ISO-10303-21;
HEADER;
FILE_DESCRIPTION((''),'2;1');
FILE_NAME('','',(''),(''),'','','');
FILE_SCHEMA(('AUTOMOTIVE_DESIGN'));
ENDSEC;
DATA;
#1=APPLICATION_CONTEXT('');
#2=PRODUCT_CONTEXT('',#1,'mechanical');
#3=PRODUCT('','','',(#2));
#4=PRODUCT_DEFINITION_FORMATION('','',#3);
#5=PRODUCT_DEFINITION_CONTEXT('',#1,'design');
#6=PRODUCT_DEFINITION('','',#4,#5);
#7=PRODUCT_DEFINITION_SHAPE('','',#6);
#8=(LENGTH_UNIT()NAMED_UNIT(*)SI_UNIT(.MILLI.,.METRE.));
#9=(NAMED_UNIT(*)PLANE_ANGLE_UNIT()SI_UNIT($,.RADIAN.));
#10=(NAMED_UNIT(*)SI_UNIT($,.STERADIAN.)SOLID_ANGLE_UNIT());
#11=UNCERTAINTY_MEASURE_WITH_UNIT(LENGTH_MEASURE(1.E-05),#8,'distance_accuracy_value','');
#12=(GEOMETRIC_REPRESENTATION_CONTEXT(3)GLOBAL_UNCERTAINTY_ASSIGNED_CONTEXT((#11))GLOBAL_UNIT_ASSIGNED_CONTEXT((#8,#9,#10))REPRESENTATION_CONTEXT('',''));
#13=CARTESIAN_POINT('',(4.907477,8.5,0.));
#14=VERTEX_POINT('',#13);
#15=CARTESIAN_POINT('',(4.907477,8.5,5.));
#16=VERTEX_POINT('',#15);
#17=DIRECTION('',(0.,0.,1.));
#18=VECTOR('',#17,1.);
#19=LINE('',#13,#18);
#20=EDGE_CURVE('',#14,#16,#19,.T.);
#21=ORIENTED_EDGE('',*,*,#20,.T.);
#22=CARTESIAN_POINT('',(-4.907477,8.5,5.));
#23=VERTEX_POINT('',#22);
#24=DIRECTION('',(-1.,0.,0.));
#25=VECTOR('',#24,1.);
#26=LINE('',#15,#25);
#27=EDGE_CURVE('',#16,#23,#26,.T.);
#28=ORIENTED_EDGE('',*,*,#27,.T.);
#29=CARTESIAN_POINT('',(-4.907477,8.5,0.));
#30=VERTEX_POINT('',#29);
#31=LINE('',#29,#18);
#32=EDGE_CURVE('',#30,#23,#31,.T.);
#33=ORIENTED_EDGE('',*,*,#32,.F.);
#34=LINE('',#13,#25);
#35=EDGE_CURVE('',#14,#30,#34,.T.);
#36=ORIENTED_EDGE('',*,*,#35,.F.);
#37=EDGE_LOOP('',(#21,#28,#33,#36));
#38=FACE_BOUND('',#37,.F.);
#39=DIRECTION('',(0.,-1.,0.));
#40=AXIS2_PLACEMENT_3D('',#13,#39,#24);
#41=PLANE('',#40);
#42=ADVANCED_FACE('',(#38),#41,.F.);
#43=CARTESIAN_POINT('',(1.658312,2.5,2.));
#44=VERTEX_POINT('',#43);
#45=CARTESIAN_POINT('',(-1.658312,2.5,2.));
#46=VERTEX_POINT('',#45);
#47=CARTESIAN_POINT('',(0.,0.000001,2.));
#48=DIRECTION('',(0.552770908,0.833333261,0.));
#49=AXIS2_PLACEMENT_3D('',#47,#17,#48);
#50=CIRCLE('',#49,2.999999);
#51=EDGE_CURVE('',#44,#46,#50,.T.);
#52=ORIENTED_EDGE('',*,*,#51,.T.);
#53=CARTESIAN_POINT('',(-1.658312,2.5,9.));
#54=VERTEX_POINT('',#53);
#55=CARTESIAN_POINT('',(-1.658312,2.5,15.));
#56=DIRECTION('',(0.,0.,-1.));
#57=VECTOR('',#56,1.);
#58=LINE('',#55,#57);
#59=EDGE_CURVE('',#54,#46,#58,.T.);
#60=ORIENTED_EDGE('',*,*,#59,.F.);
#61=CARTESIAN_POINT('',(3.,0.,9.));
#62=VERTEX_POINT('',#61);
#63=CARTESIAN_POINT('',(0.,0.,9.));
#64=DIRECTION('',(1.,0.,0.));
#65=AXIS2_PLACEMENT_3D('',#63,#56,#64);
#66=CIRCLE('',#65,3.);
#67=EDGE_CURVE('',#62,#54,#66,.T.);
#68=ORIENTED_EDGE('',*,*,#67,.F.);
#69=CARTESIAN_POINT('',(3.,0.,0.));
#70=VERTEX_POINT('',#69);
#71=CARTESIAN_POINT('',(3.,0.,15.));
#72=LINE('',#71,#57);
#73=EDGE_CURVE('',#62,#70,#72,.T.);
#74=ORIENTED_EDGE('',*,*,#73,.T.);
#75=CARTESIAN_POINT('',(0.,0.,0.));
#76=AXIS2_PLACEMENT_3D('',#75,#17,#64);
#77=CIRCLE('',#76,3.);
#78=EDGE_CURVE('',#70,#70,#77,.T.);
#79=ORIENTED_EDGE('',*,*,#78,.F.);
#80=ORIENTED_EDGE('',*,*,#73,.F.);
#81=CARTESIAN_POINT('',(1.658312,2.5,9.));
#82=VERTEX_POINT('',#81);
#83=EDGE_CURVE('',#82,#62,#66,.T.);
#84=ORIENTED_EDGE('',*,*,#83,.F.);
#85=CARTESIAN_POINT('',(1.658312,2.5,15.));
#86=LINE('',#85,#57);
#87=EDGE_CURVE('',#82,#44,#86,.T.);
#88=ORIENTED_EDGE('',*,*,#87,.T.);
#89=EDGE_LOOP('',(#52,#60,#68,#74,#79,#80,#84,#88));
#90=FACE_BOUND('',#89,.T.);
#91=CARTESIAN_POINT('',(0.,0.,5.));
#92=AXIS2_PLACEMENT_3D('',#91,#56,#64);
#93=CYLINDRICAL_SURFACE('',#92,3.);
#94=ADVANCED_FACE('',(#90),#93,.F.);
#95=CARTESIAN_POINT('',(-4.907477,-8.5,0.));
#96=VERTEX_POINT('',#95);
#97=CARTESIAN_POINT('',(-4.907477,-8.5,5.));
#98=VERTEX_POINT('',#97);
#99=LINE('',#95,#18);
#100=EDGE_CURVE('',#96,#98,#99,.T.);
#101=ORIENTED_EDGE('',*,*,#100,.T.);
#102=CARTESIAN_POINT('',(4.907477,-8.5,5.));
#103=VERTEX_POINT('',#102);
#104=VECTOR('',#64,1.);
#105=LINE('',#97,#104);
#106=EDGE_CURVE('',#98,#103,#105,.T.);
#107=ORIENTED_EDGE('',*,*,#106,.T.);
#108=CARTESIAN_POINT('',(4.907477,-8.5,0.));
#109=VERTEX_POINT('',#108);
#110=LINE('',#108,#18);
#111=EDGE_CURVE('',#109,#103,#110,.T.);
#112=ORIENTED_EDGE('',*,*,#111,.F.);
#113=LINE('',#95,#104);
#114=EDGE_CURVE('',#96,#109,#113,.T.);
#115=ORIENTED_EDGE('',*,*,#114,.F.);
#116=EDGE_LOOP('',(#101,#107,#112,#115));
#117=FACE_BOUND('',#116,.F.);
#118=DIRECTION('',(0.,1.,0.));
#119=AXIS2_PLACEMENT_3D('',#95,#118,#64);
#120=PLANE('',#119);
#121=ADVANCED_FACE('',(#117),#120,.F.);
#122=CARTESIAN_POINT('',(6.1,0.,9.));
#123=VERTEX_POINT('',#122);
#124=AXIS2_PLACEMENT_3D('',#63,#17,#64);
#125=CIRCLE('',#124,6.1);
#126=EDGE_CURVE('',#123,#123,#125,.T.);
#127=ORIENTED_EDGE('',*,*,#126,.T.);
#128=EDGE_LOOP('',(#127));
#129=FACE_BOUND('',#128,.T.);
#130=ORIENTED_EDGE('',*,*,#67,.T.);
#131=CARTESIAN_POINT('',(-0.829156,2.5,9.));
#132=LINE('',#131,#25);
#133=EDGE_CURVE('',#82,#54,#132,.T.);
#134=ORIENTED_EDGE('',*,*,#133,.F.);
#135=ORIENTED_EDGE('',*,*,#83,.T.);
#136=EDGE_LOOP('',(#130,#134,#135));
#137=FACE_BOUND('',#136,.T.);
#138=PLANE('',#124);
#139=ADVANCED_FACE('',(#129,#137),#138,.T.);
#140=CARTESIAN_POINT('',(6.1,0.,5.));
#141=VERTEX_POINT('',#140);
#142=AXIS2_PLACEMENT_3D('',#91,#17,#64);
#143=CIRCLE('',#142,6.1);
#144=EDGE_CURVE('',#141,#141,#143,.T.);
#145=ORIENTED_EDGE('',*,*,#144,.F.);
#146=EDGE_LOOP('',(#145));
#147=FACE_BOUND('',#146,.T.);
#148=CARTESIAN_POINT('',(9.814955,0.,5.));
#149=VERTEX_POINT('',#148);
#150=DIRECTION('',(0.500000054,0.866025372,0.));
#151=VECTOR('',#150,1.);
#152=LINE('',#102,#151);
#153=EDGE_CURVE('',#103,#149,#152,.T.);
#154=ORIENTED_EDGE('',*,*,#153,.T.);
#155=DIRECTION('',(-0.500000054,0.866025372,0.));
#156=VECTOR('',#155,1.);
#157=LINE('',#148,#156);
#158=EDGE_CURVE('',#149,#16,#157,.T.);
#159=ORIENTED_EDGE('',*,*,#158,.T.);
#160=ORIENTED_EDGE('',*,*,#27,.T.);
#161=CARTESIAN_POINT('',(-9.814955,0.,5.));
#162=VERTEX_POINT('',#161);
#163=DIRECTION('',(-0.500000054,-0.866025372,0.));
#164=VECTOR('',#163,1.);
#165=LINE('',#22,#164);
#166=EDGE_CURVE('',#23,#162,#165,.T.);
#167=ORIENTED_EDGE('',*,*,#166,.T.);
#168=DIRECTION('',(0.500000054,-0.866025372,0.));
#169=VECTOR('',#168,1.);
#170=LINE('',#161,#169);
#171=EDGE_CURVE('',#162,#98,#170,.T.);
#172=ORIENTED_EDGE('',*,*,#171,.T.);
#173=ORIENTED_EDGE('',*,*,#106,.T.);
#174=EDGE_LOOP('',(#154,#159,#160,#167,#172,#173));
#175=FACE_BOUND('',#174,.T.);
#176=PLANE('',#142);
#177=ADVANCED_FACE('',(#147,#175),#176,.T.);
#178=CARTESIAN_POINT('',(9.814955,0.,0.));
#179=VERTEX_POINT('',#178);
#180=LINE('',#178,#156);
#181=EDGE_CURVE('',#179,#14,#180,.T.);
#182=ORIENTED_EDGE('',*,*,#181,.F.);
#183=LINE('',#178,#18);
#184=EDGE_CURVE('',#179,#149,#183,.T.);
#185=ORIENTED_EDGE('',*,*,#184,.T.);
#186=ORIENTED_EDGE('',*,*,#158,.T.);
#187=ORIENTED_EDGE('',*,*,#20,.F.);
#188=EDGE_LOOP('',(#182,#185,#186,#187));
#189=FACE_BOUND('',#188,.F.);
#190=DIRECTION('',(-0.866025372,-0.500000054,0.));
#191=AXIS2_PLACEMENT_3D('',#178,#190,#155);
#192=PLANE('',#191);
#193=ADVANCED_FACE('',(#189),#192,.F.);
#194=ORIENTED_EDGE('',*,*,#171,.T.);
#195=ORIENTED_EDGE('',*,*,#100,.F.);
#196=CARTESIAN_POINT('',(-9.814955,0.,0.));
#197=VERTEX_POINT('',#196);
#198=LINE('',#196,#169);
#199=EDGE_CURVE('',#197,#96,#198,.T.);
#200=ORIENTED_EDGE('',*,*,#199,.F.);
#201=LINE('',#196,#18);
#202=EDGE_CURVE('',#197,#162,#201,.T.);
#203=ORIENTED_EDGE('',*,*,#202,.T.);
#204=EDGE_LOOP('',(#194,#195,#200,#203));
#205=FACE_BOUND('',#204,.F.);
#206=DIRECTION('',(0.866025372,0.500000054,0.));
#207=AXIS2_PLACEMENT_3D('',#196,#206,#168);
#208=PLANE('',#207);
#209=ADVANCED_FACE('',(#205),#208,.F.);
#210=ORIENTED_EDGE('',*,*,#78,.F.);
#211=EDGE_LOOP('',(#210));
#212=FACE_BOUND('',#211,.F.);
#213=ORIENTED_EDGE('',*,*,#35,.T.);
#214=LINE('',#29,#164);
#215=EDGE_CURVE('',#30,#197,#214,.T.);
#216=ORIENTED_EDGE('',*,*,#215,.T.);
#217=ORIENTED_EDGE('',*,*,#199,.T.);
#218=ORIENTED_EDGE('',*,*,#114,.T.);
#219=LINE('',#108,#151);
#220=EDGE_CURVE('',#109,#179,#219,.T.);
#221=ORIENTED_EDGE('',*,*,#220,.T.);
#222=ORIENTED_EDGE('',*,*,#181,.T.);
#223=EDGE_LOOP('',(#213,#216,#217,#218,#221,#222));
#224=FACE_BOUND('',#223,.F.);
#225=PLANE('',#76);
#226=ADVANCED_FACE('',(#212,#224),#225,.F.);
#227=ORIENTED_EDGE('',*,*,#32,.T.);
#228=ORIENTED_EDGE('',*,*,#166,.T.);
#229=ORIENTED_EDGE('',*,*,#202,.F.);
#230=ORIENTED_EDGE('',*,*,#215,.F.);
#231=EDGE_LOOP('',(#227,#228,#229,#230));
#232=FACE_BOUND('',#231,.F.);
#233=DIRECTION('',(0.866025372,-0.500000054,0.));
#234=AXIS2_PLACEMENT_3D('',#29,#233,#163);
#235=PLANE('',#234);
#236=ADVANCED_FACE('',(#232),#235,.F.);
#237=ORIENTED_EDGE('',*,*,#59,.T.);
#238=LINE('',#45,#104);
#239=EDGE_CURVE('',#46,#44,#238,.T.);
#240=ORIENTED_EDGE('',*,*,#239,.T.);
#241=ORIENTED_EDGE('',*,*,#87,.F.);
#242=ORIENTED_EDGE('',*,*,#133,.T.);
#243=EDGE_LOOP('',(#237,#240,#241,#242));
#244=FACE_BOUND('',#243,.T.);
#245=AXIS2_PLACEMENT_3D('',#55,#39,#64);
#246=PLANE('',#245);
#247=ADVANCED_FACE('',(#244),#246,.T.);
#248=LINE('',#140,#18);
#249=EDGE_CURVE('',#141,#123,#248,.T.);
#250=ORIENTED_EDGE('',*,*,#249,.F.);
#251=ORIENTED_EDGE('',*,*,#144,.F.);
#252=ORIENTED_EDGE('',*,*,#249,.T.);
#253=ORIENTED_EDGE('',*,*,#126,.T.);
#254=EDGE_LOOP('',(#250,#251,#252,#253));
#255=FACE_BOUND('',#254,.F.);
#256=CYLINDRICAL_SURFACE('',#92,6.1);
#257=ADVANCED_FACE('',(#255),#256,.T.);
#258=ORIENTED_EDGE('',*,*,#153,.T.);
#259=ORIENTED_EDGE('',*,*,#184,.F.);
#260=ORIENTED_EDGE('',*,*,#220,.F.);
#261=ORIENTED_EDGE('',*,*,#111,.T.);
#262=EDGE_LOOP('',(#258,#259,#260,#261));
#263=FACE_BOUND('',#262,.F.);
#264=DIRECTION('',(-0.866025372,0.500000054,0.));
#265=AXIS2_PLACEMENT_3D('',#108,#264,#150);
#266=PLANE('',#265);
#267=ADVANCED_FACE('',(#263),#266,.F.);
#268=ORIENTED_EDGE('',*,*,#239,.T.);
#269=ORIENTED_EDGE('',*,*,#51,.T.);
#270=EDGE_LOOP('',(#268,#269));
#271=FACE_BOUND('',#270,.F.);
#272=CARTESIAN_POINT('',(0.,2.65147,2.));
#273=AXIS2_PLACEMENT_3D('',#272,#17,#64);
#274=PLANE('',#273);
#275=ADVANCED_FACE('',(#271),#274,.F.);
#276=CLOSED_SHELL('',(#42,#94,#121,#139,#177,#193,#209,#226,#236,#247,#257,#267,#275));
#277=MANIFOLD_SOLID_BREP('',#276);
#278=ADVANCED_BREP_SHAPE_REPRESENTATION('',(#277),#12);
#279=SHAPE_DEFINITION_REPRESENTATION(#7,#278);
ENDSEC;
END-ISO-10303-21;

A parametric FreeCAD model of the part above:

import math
import FreeCAD as App
import Part
import Sketcher

V = App.Vector
Q = App.Units.Quantity


def add_polygon(sketch, points):
    """Adds a closed chain of lines whose ends are joined by coincident constraints."""
    first, n = sketch.GeometryCount, len(points)
    for a, b in zip(points, points[1:] + points[:1]):
        sketch.addGeometry(Part.LineSegment(App.Vector(*a, 0), App.Vector(*b, 0)), False)
    for i in range(n):
        sketch.addConstraint(Sketcher.Constraint("Coincident", first + i, 2, first + (i + 1) % n, 1))

doc = App.newDocument("Part")
body = doc.addObject("PartDesign::Body", "Body")

# Sketch on XY plane
sketch1 = body.newObject("Sketcher::SketchObject", "Sketch")
sketch1.AttachmentSupport = (doc.getObject("XY_Plane"), [""])
sketch1.MapMode = "FlatFace"
add_polygon(sketch1, [(9.8, 0), (4.9, 8.5), (-4.9, 8.5), (-9.8, 0), (-4.9, -8.5), (4.9, -8.5)])  # lines 0-5
sketch1.addGeometry(Part.Circle(V(0, 0, 0), V(0, 0, 1), 3), False)  # 6
sketch1.addConstraint([
    Sketcher.Constraint("Horizontal", 1),
    Sketcher.Constraint("Horizontal", 4),
    Sketcher.Constraint("Coincident", 6, 3, -1, 1),
    Sketcher.Constraint("Symmetric", 0, 2, 3, 2, -1, 1),
    Sketcher.Constraint("Symmetric", 2, 2, 5, 2, -1, 1),
    Sketcher.Constraint("PointOnObject", 2, 2, -1),
    Sketcher.Constraint("Parallel", 2, 5),
    Sketcher.Constraint("Vertical", 1, 2, 3, 2),
    Sketcher.Constraint("Diameter", 6, Q("6 mm")),
    Sketcher.Constraint("Angle", 0, Q("120.000004 deg")),
    Sketcher.Constraint("DistanceY", 3, 2, 1, 2, Q("17 mm")),
    Sketcher.Constraint("DistanceX", 1, 2, 1, 1, Q("9.814954 mm")),
])
pad1 = body.newObject("PartDesign::Pad", "Pad")
pad1.Profile = sketch1
pad1.Length = 5

# Sketch on XY plane
sketch2 = body.newObject("Sketcher::SketchObject", "Sketch001")
sketch2.AttachmentSupport = (doc.getObject("XY_Plane"), [""])
sketch2.MapMode = "FlatFace"
sketch2.AttachmentOffset = App.Placement(V(0, 0, 5), App.Rotation())
sketch2.addGeometry([
    Part.Circle(V(0, 0, 0), V(0, 0, 1), 6.1),
    Part.Circle(V(0, 0, 0), V(0, 0, 1), 3),
], False)
sketch2.addConstraint([
    Sketcher.Constraint("Coincident", 0, 3, -1, 1),
    Sketcher.Constraint("Coincident", 1, 3, -1, 1),
    Sketcher.Constraint("Diameter", 1, Q("6 mm")),
    Sketcher.Constraint("Diameter", 0, Q("12.2 mm")),
])
pad2 = body.newObject("PartDesign::Pad", "Pad001")
pad2.Profile = sketch2
pad2.Length = 10

# Sketch on XY plane
sketch3 = body.newObject("Sketcher::SketchObject", "Sketch002")
sketch3.AttachmentSupport = (doc.getObject("XY_Plane"), [""])
sketch3.MapMode = "FlatFace"
sketch3.AttachmentOffset = App.Placement(V(0, 0, 15), App.Rotation())
sketch3.addGeometry([
    Part.LineSegment(V(-1.7, 2.5, 0), V(1.7, 2.5, 0)),
    Part.ArcOfCircle(Part.Circle(V(0, 0, 0), V(0, 0, 1), 3), math.radians(56), math.radians(124)),
], False)
sketch3.addConstraint([
    Sketcher.Constraint("Coincident", 0, 1, 1, 2),
    Sketcher.Constraint("Coincident", 1, 1, 0, 2),
    Sketcher.Constraint("Horizontal", 0),
    Sketcher.Constraint("Coincident", 1, 3, -1, 1),
    Sketcher.Constraint("Radius", 1, Q("2.999999 mm")),
    Sketcher.Constraint("DistanceY", -1, 1, 0, 1, Q("2.5 mm")),
])
pad3 = body.newObject("PartDesign::Pad", "Pad002")
pad3.Profile = sketch3
pad3.Length = 13
pad3.Reversed = True

# Sketch on XY plane
sketch4 = body.newObject("Sketcher::SketchObject", "Sketch003")
sketch4.AttachmentSupport = (doc.getObject("XY_Plane"), [""])
sketch4.MapMode = "FlatFace"
sketch4.AttachmentOffset = App.Placement(V(0, 0, 15), App.Rotation())
sketch4.addGeometry(Part.Circle(V(0, 0, 0), V(0, 0, 1), 6), False)
sketch4.addConstraint([
    Sketcher.Constraint("Coincident", 0, 3, -1, 1),
    Sketcher.Constraint("Diameter", 0, Q("12.2 mm")),
])
pocket1 = body.newObject("PartDesign::Pocket", "Pocket")
pocket1.Profile = sketch4
pocket1.Length = 6

doc.recompute()
